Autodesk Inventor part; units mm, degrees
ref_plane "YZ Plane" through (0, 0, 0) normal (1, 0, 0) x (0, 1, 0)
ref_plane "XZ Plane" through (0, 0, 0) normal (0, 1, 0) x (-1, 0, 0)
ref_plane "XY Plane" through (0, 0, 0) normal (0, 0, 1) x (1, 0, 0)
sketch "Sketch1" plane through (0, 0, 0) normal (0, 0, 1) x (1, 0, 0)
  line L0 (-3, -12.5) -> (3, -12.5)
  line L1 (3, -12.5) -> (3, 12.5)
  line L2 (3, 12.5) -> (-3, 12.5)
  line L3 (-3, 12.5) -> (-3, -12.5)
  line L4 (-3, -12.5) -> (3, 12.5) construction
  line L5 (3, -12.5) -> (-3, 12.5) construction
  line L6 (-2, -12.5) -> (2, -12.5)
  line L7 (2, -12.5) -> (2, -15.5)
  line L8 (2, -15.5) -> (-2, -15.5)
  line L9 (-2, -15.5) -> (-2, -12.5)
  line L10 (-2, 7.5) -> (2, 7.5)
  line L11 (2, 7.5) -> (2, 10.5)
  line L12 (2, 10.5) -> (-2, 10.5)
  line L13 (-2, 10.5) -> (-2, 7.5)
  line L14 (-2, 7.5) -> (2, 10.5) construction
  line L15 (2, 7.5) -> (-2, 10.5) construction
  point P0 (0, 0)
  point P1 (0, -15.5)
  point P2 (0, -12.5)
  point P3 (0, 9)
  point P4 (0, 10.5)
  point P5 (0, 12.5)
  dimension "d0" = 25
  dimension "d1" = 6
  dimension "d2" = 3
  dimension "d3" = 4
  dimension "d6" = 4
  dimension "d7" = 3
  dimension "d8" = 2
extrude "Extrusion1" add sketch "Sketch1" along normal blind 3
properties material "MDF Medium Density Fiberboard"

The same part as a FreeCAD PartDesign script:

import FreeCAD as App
import Part
import Sketcher

V = App.Vector

doc = App.newDocument("Part")
body = doc.addObject("PartDesign::Body", "Body")

# Sketch on XY plane
sketch1 = doc.addObject("Sketcher::SketchObject", "Sketch")
body.addObject(sketch1)
sketch1.AttachmentSupport = (doc.XY_Plane, [""])
sketch1.MapMode = "FlatFace"
sketch1.addGeometry(Part.LineSegment(V(-3, 12.5, 0), V(-3, -12.5, 0)), False)
sketch1.addGeometry(Part.LineSegment(V(-3, -12.5, 0), V(-2, -12.5, 0)), False)
sketch1.addGeometry(Part.LineSegment(V(-2, -12.5, 0), V(-2, -15.5, 0)), False)
sketch1.addGeometry(Part.LineSegment(V(-2, -15.5, 0), V(2, -15.5, 0)), False)
sketch1.addGeometry(Part.LineSegment(V(2, -15.5, 0), V(2, -12.5, 0)), False)
sketch1.addGeometry(Part.LineSegment(V(2, -12.5, 0), V(3, -12.5, 0)), False)
sketch1.addGeometry(Part.LineSegment(V(3, -12.5, 0), V(3, 12.5, 0)), False)
sketch1.addGeometry(Part.LineSegment(V(3, 12.5, 0), V(-3, 12.5, 0)), False)
sketch1.addGeometry(Part.LineSegment(V(2, 7.5, 0), V(-2, 7.5, 0)), False)
sketch1.addGeometry(Part.LineSegment(V(-2, 7.5, 0), V(-2, 10.5, 0)), False)
sketch1.addGeometry(Part.LineSegment(V(-2, 10.5, 0), V(2, 10.5, 0)), False)
sketch1.addGeometry(Part.LineSegment(V(2, 10.5, 0), V(2, 7.5, 0)), False)
sketch1.addConstraint(Sketcher.Constraint("Coincident", 0, 2, 1, 1))
sketch1.addConstraint(Sketcher.Constraint("Coincident", 1, 2, 2, 1))
sketch1.addConstraint(Sketcher.Constraint("Coincident", 2, 2, 3, 1))
sketch1.addConstraint(Sketcher.Constraint("Coincident", 3, 2, 4, 1))
sketch1.addConstraint(Sketcher.Constraint("Coincident", 4, 2, 5, 1))
sketch1.addConstraint(Sketcher.Constraint("Coincident", 5, 2, 6, 1))
sketch1.addConstraint(Sketcher.Constraint("Coincident", 6, 2, 7, 1))
sketch1.addConstraint(Sketcher.Constraint("Coincident", 7, 2, 0, 1))
sketch1.addConstraint(Sketcher.Constraint("Coincident", 8, 2, 9, 1))
sketch1.addConstraint(Sketcher.Constraint("Coincident", 9, 2, 10, 1))
sketch1.addConstraint(Sketcher.Constraint("Coincident", 10, 2, 11, 1))
sketch1.addConstraint(Sketcher.Constraint("Coincident", 11, 2, 8, 1))
sketch1.addConstraint(Sketcher.Constraint("Vertical", 0))
sketch1.addConstraint(Sketcher.Constraint("Horizontal", 1))
sketch1.addConstraint(Sketcher.Constraint("Vertical", 2))
sketch1.addConstraint(Sketcher.Constraint("Horizontal", 3))
sketch1.addConstraint(Sketcher.Constraint("Vertical", 4))
sketch1.addConstraint(Sketcher.Constraint("Horizontal", 5))
sketch1.addConstraint(Sketcher.Constraint("Vertical", 6))
sketch1.addConstraint(Sketcher.Constraint("Horizontal", 7))
sketch1.addConstraint(Sketcher.Constraint("Horizontal", 8))
sketch1.addConstraint(Sketcher.Constraint("Vertical", 9))
sketch1.addConstraint(Sketcher.Constraint("Horizontal", 10))
sketch1.addConstraint(Sketcher.Constraint("Vertical", 11))
sketch1.addConstraint(Sketcher.Constraint("Symmetric", 0, 2, 6, 2, -1, 1))
sketch1.addConstraint(Sketcher.Constraint("Symmetric", 1, 2, 4, 2, -2))
sketch1.addConstraint(Sketcher.Constraint("Vertical", 2, 2, 8, 2))
sketch1.addConstraint(Sketcher.Constraint("Vertical", 4, 2, 10, 2))
sketch1.addConstraint(Sketcher.Constraint("Equal", 4, 9))
sketch1.addConstraint(Sketcher.Constraint("DistanceX", 3, 1, 3, 2, 4.0))
sketch1.addConstraint(Sketcher.Constraint("DistanceX", 7, 2, 7, 1, 6.0))
sketch1.addConstraint(Sketcher.Constraint("DistanceY", 0, 2, 0, 1, 25.0))
sketch1.addConstraint(Sketcher.Constraint("DistanceY", 2, 2, 2, 1, 3.0))
sketch1.addConstraint(Sketcher.Constraint("DistanceY", 9, 2, 7, 2, 2.0))
pad1 = doc.addObject("PartDesign::Pad", "Pad")
body.addObject(pad1)
pad1.Profile = sketch1
pad1.Length = 3

doc.recompute()
